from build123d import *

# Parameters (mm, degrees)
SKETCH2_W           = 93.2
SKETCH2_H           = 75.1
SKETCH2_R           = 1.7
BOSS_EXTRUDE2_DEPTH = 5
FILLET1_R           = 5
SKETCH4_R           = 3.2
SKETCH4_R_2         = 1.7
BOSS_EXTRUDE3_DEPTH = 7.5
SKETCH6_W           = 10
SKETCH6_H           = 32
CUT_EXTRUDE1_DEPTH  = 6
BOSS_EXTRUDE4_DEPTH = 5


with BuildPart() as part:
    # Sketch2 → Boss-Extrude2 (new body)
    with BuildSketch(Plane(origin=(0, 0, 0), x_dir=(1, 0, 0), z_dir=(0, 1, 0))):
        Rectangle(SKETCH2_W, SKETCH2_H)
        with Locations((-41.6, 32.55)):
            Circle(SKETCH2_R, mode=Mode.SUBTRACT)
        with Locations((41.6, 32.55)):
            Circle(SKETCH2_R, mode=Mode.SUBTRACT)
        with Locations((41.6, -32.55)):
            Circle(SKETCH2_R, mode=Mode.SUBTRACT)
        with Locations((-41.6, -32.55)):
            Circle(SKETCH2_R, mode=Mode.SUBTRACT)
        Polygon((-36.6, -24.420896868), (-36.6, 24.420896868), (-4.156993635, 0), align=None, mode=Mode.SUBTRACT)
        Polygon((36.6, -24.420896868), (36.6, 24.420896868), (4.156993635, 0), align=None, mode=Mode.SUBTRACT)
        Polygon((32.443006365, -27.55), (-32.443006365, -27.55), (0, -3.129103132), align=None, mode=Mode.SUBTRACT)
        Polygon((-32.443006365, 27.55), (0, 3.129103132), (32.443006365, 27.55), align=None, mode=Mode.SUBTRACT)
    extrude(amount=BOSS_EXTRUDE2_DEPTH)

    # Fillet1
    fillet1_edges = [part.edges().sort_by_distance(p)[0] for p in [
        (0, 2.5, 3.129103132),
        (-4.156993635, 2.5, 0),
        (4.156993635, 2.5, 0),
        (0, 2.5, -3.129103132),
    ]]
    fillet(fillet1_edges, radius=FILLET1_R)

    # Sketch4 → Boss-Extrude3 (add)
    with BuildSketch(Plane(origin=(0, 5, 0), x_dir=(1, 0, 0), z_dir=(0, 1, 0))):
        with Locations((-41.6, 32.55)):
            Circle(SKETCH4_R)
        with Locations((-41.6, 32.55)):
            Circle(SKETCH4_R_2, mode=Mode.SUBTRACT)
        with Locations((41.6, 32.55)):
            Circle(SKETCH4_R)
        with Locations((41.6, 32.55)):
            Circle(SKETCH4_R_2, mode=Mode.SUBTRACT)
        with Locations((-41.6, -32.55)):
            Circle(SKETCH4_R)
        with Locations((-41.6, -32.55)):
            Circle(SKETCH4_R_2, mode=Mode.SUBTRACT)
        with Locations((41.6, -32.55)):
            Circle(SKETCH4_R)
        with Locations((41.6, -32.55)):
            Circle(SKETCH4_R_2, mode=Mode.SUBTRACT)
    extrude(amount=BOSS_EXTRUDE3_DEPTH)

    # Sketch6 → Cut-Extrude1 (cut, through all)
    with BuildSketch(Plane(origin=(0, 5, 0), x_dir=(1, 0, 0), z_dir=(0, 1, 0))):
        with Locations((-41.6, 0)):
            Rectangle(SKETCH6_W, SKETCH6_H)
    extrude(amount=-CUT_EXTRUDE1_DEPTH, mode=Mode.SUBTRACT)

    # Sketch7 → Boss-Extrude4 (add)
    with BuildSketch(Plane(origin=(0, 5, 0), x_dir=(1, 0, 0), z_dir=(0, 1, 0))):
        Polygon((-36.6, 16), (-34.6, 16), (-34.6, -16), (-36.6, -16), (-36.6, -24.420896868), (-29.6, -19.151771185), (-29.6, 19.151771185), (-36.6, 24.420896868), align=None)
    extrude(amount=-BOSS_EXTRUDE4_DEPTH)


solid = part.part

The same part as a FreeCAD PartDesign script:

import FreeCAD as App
import Part
import Sketcher

V = App.Vector
Q = App.Units.Quantity


def edges_at(feature, points):
    """Names of the edges that pass closest to the given points."""
    edges = feature.Shape.Edges
    near = lambda p: min(range(len(edges)), key=lambda i: edges[i].distToShape(Part.Vertex(*p))[0])
    return sorted({f"Edge{near(p) + 1}" for p in points})

doc = App.newDocument("Part")
params = doc.addObject("Spreadsheet::Sheet", "Params")
for row, (alias, value) in enumerate([
    ("sketch1_diameter", "3.4 mm"),
    ("sketch1_width", "93.2 mm"),
    ("sketch1_height", "75.1 mm"),
    ("pad1_length", "5 mm"),
    ("fillet_radius", "5 mm"),
    ("sketch2_diameter", "6.4 mm"),
    ("sketch2_diameter2", "3.4 mm"),
    ("pad2_length", "7.5 mm"),
    ("sketch3_width", "10 mm"),
    ("sketch3_height", "32 mm"),
    ("sketch4_width", "2 mm"),
    ("sketch4_height", "32 mm"),
    ("pad3_length", "5 mm"),
], start=1):
    params.set(f"A{row}", alias)
    params.set(f"B{row}", "=" + value)
    params.setAlias(f"B{row}", alias)

body = doc.addObject("PartDesign::Body", "Body")

sketch1 = body.newObject("Sketcher::SketchObject", "Sketch")
sketch1.AttachmentSupport = (doc.getObject("XZ_Plane"), [""])
sketch1.MapMode = "FlatFace"
sketch1.addGeometry(Part.LineSegment(V(-46.6, -37.5, 0), V(-46.6, 37.5, 0)), False)
sketch1.addGeometry(Part.LineSegment(V(-46.6, 37.5, 0), V(46.6, 37.5, 0)), False)
sketch1.addGeometry(Part.LineSegment(V(46.6, 37.5, 0), V(46.6, -37.5, 0)), False)
sketch1.addGeometry(Part.LineSegment(V(46.6, -37.5, 0), V(-46.6, -37.5, 0)), False)
sketch1.addGeometry(Part.Circle(V(-41.6, 32.5, 0), V(0, 0, 1), 1.7), False)
sketch1.addGeometry(Part.Circle(V(41.6, 32.5, 0), V(0, 0, 1), 1.7), False)
sketch1.addGeometry(Part.LineSegment(V(0, 3.1, 0), V(32.4, 27.6, 0)), False)
sketch1.addGeometry(Part.LineSegment(V(32.4, 27.6, 0), V(-32.4, 27.6, 0)), False)
sketch1.addGeometry(Part.LineSegment(V(-32.4, 27.6, 0), V(0, 3.1, 0)), False)
sketch1.addGeometry(Part.LineSegment(V(-4.2, 0, 0), V(-36.6, 24.4, 0)), False)
sketch1.addGeometry(Part.LineSegment(V(-36.6, 24.4, 0), V(-36.6, -24.4, 0)), False)
sketch1.addGeometry(Part.LineSegment(V(-36.6, -24.4, 0), V(-4.2, 0, 0)), False)
sketch1.addGeometry(Part.Circle(V(-41.6, -32.5, 0), V(0, 0, 1), 1.7), False)
sketch1.addGeometry(Part.LineSegment(V(36.6, -24.4, 0), V(36.6, 24.4, 0)), False)
sketch1.addGeometry(Part.LineSegment(V(36.6, 24.4, 0), V(4.2, 0, 0)), False)
sketch1.addGeometry(Part.LineSegment(V(4.2, 0, 0), V(36.6, -24.4, 0)), False)
sketch1.addGeometry(Part.LineSegment(V(0, -3.1, 0), V(-32.4, -27.6, 0)), False)
sketch1.addGeometry(Part.LineSegment(V(-32.4, -27.6, 0), V(32.4, -27.6, 0)), False)
sketch1.addGeometry(Part.LineSegment(V(32.4, -27.6, 0), V(0, -3.1, 0)), False)
sketch1.addGeometry(Part.Circle(V(41.6, -32.5, 0), V(0, 0, 1), 1.7), False)
sketch1.addConstraint(Sketcher.Constraint("Coincident", 0, 2, 1, 1))
sketch1.addConstraint(Sketcher.Constraint("Coincident", 1, 2, 2, 1))
sketch1.addConstraint(Sketcher.Constraint("Coincident", 2, 2, 3, 1))
sketch1.addConstraint(Sketcher.Constraint("Coincident", 3, 2, 0, 1))
sketch1.addConstraint(Sketcher.Constraint("Coincident", 6, 2, 7, 1))
sketch1.addConstraint(Sketcher.Constraint("Coincident", 7, 2, 8, 1))
sketch1.addConstraint(Sketcher.Constraint("Coincident", 8, 2, 6, 1))
sketch1.addConstraint(Sketcher.Constraint("Coincident", 9, 2, 10, 1))
sketch1.addConstraint(Sketcher.Constraint("Coincident", 10, 2, 11, 1))
sketch1.addConstraint(Sketcher.Constraint("Coincident", 11, 2, 9, 1))
sketch1.addConstraint(Sketcher.Constraint("Coincident", 13, 2, 14, 1))
sketch1.addConstraint(Sketcher.Constraint("Coincident", 14, 2, 15, 1))
sketch1.addConstraint(Sketcher.Constraint("Coincident", 15, 2, 13, 1))
sketch1.addConstraint(Sketcher.Constraint("Coincident", 16, 2, 17, 1))
sketch1.addConstraint(Sketcher.Constraint("Coincident", 17, 2, 18, 1))
sketch1.addConstraint(Sketcher.Constraint("Coincident", 18, 2, 16, 1))
sketch1.addConstraint(Sketcher.Constraint("Vertical", 0))
sketch1.addConstraint(Sketcher.Constraint("Horizontal", 1))
sketch1.addConstraint(Sketcher.Constraint("Vertical", 2))
sketch1.addConstraint(Sketcher.Constraint("Horizontal", 3))
sketch1.addConstraint(Sketcher.Constraint("Horizontal", 7))
sketch1.addConstraint(Sketcher.Constraint("Vertical", 10))
sketch1.addConstraint(Sketcher.Constraint("Vertical", 13))
sketch1.addConstraint(Sketcher.Constraint("Horizontal", 17))
sketch1.addConstraint(Sketcher.Constraint("Equal", 4, 5))
sketch1.addConstraint(Sketcher.Constraint("Equal", 5, 12))
sketch1.addConstraint(Sketcher.Constraint("Equal", 12, 19))
sketch1.addConstraint(Sketcher.Constraint("Symmetric", 5, 3, 12, 3, -1, 1))
sketch1.addConstraint(Sketcher.Constraint("Symmetric", 4, 3, 19, 3, -1, 1))
sketch1.addConstraint(Sketcher.Constraint("Symmetric", 0, 2, 2, 2, -1, 1))
sketch1.addConstraint(Sketcher.Constraint("Symmetric", 10, 2, 13, 2, -1, 1))
sketch1.addConstraint(Sketcher.Constraint("Symmetric", 11, 2, 14, 2, -1, 1))
sketch1.addConstraint(Sketcher.Constraint("Symmetric", 6, 2, 16, 2, -1, 1))
sketch1.addConstraint(Sketcher.Constraint("Symmetric", 8, 2, 18, 2, -1, 1))
sketch1.addConstraint(Sketcher.Constraint("Symmetric", 4, 3, 5, 3, -2))
sketch1.addConstraint(Sketcher.Constraint("PointOnObject", 8, 2, -2))
sketch1.addConstraint(Sketcher.Constraint("PointOnObject", 11, 2, -1))
sketch1.addConstraint(Sketcher.Constraint("Parallel", 8, 9))
sketch1.addConstraint(Sketcher.Constraint("Parallel", 6, 11))
sketch1.addConstraint(Sketcher.Constraint("Parallel", 9, 15))
sketch1.addConstraint(Sketcher.Constraint("Parallel", 15, 18))
sketch1.addConstraint(Sketcher.Constraint("Horizontal", 9, 2, 13, 2))
sketch1.addConstraint(Sketcher.Constraint("Equal", 8, 9))
sketch1.addConstraint(Sketcher.Constraint("Diameter", 4, Q("3.4 mm")))
sketch1.addConstraint(Sketcher.Constraint("DistanceX", 1, 1, 1, 2, Q("93.2 mm")))
sketch1.addConstraint(Sketcher.Constraint("DistanceY", 0, 1, 0, 2, Q("75.1 mm")))
sketch1.addConstraint(Sketcher.Constraint("DistanceX", 0, 2, 4, 3, Q("5 mm")))
sketch1.addConstraint(Sketcher.Constraint("DistanceY", 4, 3, 0, 2, Q("5 mm")))
sketch1.addConstraint(Sketcher.Constraint("DistanceY", 6, 2, 5, 3, Q("5 mm")))
sketch1.addConstraint(Sketcher.Constraint("DistanceX", 4, 3, 9, 2, Q("5 mm")))
sketch1.addConstraint(Sketcher.Constraint("DistanceX", 7, 2, 7, 1, Q("64.886013 mm")))
sketch1.addConstraint(Sketcher.Constraint("DistanceY", 10, 2, 10, 1, Q("48.841794 mm")))
sketch1.setExpression("Constraints[43]", "Params.sketch1_diameter")
sketch1.setExpression("Constraints[44]", "Params.sketch1_width")
sketch1.setExpression("Constraints[45]", "Params.sketch1_height")
pad1 = body.newObject("PartDesign::Pad", "Pad")
pad1.Profile = sketch1
pad1.setExpression("Length", "Params.pad1_length")
pad1.Reversed = True
doc.recompute()

fillet = body.newObject("PartDesign::Fillet", "Fillet")
fillet.Base = (pad1, edges_at(pad1, [
    (0, 2.5, 3.129),
    (-4.157, 2.5, 0),
    (4.157, 2.5, 0),
    (0, 2.5, -3.129),
]))
fillet.setExpression("Radius", "Params.fillet_radius")

sketch2 = body.newObject("Sketcher::SketchObject", "Sketch001")
sketch2.AttachmentSupport = (doc.getObject("XZ_Plane"), [""])
sketch2.MapMode = "FlatFace"
sketch2.AttachmentOffset = App.Placement(V(0, 0, -5), App.Rotation())
sketch2.addGeometry(Part.Circle(V(-41.6, -32.5, 0), V(0, 0, 1), 3.2), False)
sketch2.addGeometry(Part.Circle(V(-41.6, -32.5, 0), V(0, 0, 1), 1.7), False)
sketch2.addGeometry(Part.Circle(V(41.6, -32.5, 0), V(0, 0, 1), 3.2), False)
sketch2.addGeometry(Part.Circle(V(41.6, -32.5, 0), V(0, 0, 1), 1.7), False)
sketch2.addGeometry(Part.Circle(V(-41.6, 32.5, 0), V(0, 0, 1), 3.2), False)
sketch2.addGeometry(Part.Circle(V(-41.6, 32.5, 0), V(0, 0, 1), 1.7), False)
sketch2.addGeometry(Part.Circle(V(41.6, 32.5, 0), V(0, 0, 1), 3.2), False)
sketch2.addGeometry(Part.Circle(V(41.6, 32.5, 0), V(0, 0, 1), 1.7), False)
sketch2.addConstraint(Sketcher.Constraint("Coincident", 1, 3, 0, 3))
sketch2.addConstraint(Sketcher.Constraint("Coincident", 3, 3, 2, 3))
sketch2.addConstraint(Sketcher.Constraint("Coincident", 5, 3, 4, 3))
sketch2.addConstraint(Sketcher.Constraint("Coincident", 7, 3, 6, 3))
sketch2.addConstraint(Sketcher.Constraint("Equal", 0, 2))
sketch2.addConstraint(Sketcher.Constraint("Equal", 1, 3))
sketch2.addConstraint(Sketcher.Constraint("Equal", 2, 4))
sketch2.addConstraint(Sketcher.Constraint("Equal", 3, 5))
sketch2.addConstraint(Sketcher.Constraint("Equal", 4, 6))
sketch2.addConstraint(Sketcher.Constraint("Equal", 5, 7))
sketch2.addConstraint(Sketcher.Constraint("Symmetric", 2, 3, 4, 3, -1, 1))
sketch2.addConstraint(Sketcher.Constraint("Symmetric", 0, 3, 6, 3, -1, 1))
sketch2.addConstraint(Sketcher.Constraint("Symmetric", 0, 3, 2, 3, -2))
sketch2.addConstraint(Sketcher.Constraint("Diameter", 0, Q("6.4 mm")))
sketch2.addConstraint(Sketcher.Constraint("Diameter", 1, Q("3.4 mm")))
sketch2.addConstraint(Sketcher.Constraint("DistanceX", 0, 3, -1, 1, Q("41.6 mm")))
sketch2.addConstraint(Sketcher.Constraint("DistanceY", 0, 3, 4, 3, Q("65.1 mm")))
sketch2.setExpression("Constraints[13]", "Params.sketch2_diameter")
sketch2.setExpression("Constraints[14]", "Params.sketch2_diameter2")
pad2 = body.newObject("PartDesign::Pad", "Pad001")
pad2.Profile = sketch2
pad2.setExpression("Length", "Params.pad2_length")
pad2.Reversed = True

sketch3 = body.newObject("Sketcher::SketchObject", "Sketch002")
sketch3.AttachmentSupport = (doc.getObject("XZ_Plane"), [""])
sketch3.MapMode = "FlatFace"
sketch3.AttachmentOffset = App.Placement(V(0, 0, -5), App.Rotation())
sketch3.addGeometry(Part.LineSegment(V(-47, -16, 0), V(-47, 16, 0)), False)
sketch3.addGeometry(Part.LineSegment(V(-47, 16, 0), V(-37, 16, 0)), False)
sketch3.addGeometry(Part.LineSegment(V(-37, 16, 0), V(-37, -16, 0)), False)
sketch3.addGeometry(Part.LineSegment(V(-37, -16, 0), V(-47, -16, 0)), False)
sketch3.addConstraint(Sketcher.Constraint("Coincident", 0, 2, 1, 1))
sketch3.addConstraint(Sketcher.Constraint("Coincident", 1, 2, 2, 1))
sketch3.addConstraint(Sketcher.Constraint("Coincident", 2, 2, 3, 1))
sketch3.addConstraint(Sketcher.Constraint("Coincident", 3, 2, 0, 1))
sketch3.addConstraint(Sketcher.Constraint("Vertical", 0))
sketch3.addConstraint(Sketcher.Constraint("Horizontal", 1))
sketch3.addConstraint(Sketcher.Constraint("Vertical", 2))
sketch3.addConstraint(Sketcher.Constraint("Horizontal", 3))
sketch3.addConstraint(Sketcher.Constraint("DistanceX", 1, 1, 1, 2, Q("10 mm")))
sketch3.addConstraint(Sketcher.Constraint("DistanceY", 0, 1, 0, 2, Q("32 mm")))
sketch3.addConstraint(Sketcher.Constraint("DistanceY", -1, 1, 0, 2, Q("16 mm")))
sketch3.addConstraint(Sketcher.Constraint("DistanceX", 0, 2, -1, 1, Q("46.6 mm")))
sketch3.setExpression("Constraints[8]", "Params.sketch3_width")
sketch3.setExpression("Constraints[9]", "Params.sketch3_height")
pocket1 = body.newObject("PartDesign::Pocket", "Pocket")
pocket1.Profile = sketch3
pocket1.Type = "ThroughAll"
pocket1.Reversed = True

sketch4 = body.newObject("Sketcher::SketchObject", "Sketch003")
sketch4.AttachmentSupport = (doc.getObject("XZ_Plane"), [""])
sketch4.MapMode = "FlatFace"
sketch4.AttachmentOffset = App.Placement(V(0, 0, -5), App.Rotation())
sketch4.addGeometry(Part.LineSegment(V(-36.6, -16, 0), V(-34.6, -16, 0)), False)
sketch4.addGeometry(Part.LineSegment(V(-34.6, -16, 0), V(-34.6, 16, 0)), False)
sketch4.addGeometry(Part.LineSegment(V(-34.6, 16, 0), V(-36.6, 16, 0)), False)
sketch4.addGeometry(Part.LineSegment(V(-36.6, 16, 0), V(-36.6, 24.4, 0)), False)
sketch4.addGeometry(Part.LineSegment(V(-36.6, 24.4, 0), V(-29.6, 19.2, 0)), False)
sketch4.addGeometry(Part.LineSegment(V(-29.6, 19.2, 0), V(-29.6, -19.2, 0)), False)
sketch4.addGeometry(Part.LineSegment(V(-29.6, -19.2, 0), V(-36.6, -24.4, 0)), False)
sketch4.addGeometry(Part.LineSegment(V(-36.6, -24.4, 0), V(-36.6, -16, 0)), False)
sketch4.addConstraint(Sketcher.Constraint("Coincident", 0, 2, 1, 1))
sketch4.addConstraint(Sketcher.Constraint("Coincident", 1, 2, 2, 1))
sketch4.addConstraint(Sketcher.Constraint("Coincident", 2, 2, 3, 1))
sketch4.addConstraint(Sketcher.Constraint("Coincident", 3, 2, 4, 1))
sketch4.addConstraint(Sketcher.Constraint("Coincident", 4, 2, 5, 1))
sketch4.addConstraint(Sketcher.Constraint("Coincident", 5, 2, 6, 1))
sketch4.addConstraint(Sketcher.Constraint("Coincident", 6, 2, 7, 1))
sketch4.addConstraint(Sketcher.Constraint("Coincident", 7, 2, 0, 1))
sketch4.addConstraint(Sketcher.Constraint("Horizontal", 0))
sketch4.addConstraint(Sketcher.Constraint("Vertical", 1))
sketch4.addConstraint(Sketcher.Constraint("Horizontal", 2))
sketch4.addConstraint(Sketcher.Constraint("Vertical", 3))
sketch4.addConstraint(Sketcher.Constraint("Vertical", 5))
sketch4.addConstraint(Sketcher.Constraint("Vertical", 7))
sketch4.addConstraint(Sketcher.Constraint("Symmetric", 3, 2, 6, 2, -1))
sketch4.addConstraint(Sketcher.Constraint("Equal", 3, 7))
sketch4.addConstraint(Sketcher.Constraint("Equal", 4, 6))
sketch4.addConstraint(Sketcher.Constraint("DistanceX", 0, 1, 0, 2, Q("2 mm")))
sketch4.addConstraint(Sketcher.Constraint("DistanceY", 1, 1, 1, 2, Q("32 mm")))
sketch4.addConstraint(Sketcher.Constraint("DistanceX", 1, 2, 4, 2, Q("5 mm")))
sketch4.addConstraint(Sketcher.Constraint("DistanceX", 0, 2, -1, 1, Q("34.6 mm")))
sketch4.addConstraint(Sketcher.Constraint("Distance", 4, Q("8.761489 mm")))
sketch4.addConstraint(Sketcher.Constraint("DistanceY", 3, 1, 3, 2, Q("8.420897 mm")))
sketch4.setExpression("Constraints[17]", "Params.sketch4_width")
sketch4.setExpression("Constraints[18]", "Params.sketch4_height")
pad3 = body.newObject("PartDesign::Pad", "Pad002")
pad3.Profile = sketch4
pad3.setExpression("Length", "Params.pad3_length")

doc.recompute()
